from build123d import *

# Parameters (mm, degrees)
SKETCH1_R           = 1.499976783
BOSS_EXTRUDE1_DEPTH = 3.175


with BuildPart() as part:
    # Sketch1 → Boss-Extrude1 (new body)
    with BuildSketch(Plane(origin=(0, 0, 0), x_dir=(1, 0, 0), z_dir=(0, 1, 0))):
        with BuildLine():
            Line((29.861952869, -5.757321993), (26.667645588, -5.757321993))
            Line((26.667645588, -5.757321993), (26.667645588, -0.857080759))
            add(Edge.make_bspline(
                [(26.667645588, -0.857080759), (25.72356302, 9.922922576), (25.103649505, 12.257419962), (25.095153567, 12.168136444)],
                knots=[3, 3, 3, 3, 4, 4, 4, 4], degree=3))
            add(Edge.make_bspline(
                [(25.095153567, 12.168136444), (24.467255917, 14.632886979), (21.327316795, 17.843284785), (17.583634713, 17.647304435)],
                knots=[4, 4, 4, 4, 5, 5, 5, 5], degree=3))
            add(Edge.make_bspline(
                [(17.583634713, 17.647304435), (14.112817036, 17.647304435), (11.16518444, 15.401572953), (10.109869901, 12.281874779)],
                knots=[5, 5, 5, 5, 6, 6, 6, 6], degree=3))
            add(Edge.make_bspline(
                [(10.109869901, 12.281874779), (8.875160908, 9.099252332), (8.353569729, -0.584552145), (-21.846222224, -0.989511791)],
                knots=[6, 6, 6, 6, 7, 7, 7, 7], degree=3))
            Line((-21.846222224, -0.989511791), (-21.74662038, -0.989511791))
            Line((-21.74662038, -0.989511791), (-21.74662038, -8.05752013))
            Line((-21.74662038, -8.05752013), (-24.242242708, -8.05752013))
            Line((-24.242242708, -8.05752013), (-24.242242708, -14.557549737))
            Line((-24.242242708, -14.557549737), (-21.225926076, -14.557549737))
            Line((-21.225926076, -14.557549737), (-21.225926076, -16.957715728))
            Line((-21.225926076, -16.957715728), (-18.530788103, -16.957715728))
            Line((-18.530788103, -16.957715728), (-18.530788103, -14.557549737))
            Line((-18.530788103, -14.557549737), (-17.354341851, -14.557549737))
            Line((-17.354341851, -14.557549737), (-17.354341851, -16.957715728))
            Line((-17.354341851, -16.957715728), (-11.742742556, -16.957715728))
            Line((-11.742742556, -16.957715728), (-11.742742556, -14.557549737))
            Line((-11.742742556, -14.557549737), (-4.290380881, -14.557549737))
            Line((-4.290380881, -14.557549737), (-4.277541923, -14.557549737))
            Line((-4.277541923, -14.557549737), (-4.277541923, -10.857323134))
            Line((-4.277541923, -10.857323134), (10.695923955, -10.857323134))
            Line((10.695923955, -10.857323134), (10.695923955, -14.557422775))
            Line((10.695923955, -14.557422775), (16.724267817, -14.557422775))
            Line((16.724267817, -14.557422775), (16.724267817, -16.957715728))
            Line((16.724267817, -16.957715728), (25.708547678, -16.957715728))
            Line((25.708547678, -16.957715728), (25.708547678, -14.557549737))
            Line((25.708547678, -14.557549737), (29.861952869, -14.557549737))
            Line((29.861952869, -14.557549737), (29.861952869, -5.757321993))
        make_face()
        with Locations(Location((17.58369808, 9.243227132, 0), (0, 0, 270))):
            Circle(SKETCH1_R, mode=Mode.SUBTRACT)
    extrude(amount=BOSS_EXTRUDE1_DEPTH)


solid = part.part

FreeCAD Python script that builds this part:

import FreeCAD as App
import Part
import Sketcher
Q = App.Units.Quantity

doc = App.newDocument("Part")
body = doc.addObject("PartDesign::Body", "Body")

sketch1 = doc.addObject("Sketcher::SketchObject", "Sketch")
body.addObject(sketch1)
sketch1.AttachmentSupport = (doc.XZ_Plane, [""])
sketch1.MapMode = "FlatFace"
sketch1.addGeometry([
    Part.LineSegment(App.Vector(29.861953, 5.757322, 0), App.Vector(26.667646, 5.757322, 0)),
    Part.LineSegment(App.Vector(26.667646, 5.757322, 0), App.Vector(26.667646, 0.857081, 0)),
    Part.BSplineCurve([App.Vector(26.667646, 0.857081, 0), App.Vector(25.723563, -9.922923, 0), App.Vector(25.10365, -12.25742, 0), App.Vector(25.095154, -12.168136, 0)], [4, 4], [3, 4], False, 3, [1, 1, 1, 1], False),
    Part.BSplineCurve([App.Vector(25.095154, -12.168136, 0), App.Vector(24.467256, -14.632887, 0), App.Vector(21.327317, -17.843285, 0), App.Vector(17.583635, -17.647304, 0)], [4, 4], [4, 5], False, 3, [1, 1, 1, 1], False),
    Part.BSplineCurve([App.Vector(17.583635, -17.647304, 0), App.Vector(14.112817, -17.647304, 0), App.Vector(11.165184, -15.401573, 0), App.Vector(10.10987, -12.281875, 0)], [4, 4], [5, 6], False, 3, [1, 1, 1, 1], False),
    Part.BSplineCurve([App.Vector(10.10987, -12.281875, 0), App.Vector(8.875161, -9.099252, 0), App.Vector(8.35357, 0.584552, 0), App.Vector(-21.846222, 0.989512, 0)], [4, 4], [6, 7], False, 3, [1, 1, 1, 1], False),
    Part.LineSegment(App.Vector(-21.846222, 0.989512, 0), App.Vector(-21.74662, 0.989512, 0)),
    Part.LineSegment(App.Vector(-21.74662, 0.989512, 0), App.Vector(-21.74662, 8.05752, 0)),
    Part.LineSegment(App.Vector(-21.74662, 8.05752, 0), App.Vector(-24.242243, 8.05752, 0)),
    Part.LineSegment(App.Vector(-24.242243, 8.05752, 0), App.Vector(-24.242243, 14.55755, 0)),
    Part.LineSegment(App.Vector(-24.242243, 14.55755, 0), App.Vector(-21.225926, 14.55755, 0)),
    Part.LineSegment(App.Vector(-21.225926, 14.55755, 0), App.Vector(-21.225926, 16.957716, 0)),
    Part.LineSegment(App.Vector(-21.225926, 16.957716, 0), App.Vector(-18.530788, 16.957716, 0)),
    Part.LineSegment(App.Vector(-18.530788, 16.957716, 0), App.Vector(-18.530788, 14.55755, 0)),
    Part.LineSegment(App.Vector(-18.530788, 14.55755, 0), App.Vector(-17.354342, 14.55755, 0)),
    Part.LineSegment(App.Vector(-17.354342, 14.55755, 0), App.Vector(-17.354342, 16.957716, 0)),
    Part.LineSegment(App.Vector(-17.354342, 16.957716, 0), App.Vector(-11.742743, 16.957716, 0)),
    Part.LineSegment(App.Vector(-11.742743, 16.957716, 0), App.Vector(-11.742743, 14.55755, 0)),
    Part.LineSegment(App.Vector(-11.742743, 14.55755, 0), App.Vector(-4.277542, 14.55755, 0)),
    Part.LineSegment(App.Vector(-4.277542, 14.55755, 0), App.Vector(-4.277542, 10.857323, 0)),
    Part.LineSegment(App.Vector(-4.277542, 10.857323, 0), App.Vector(10.695924, 10.857323, 0)),
    Part.LineSegment(App.Vector(10.695924, 10.857323, 0), App.Vector(10.695924, 14.557423, 0)),
    Part.LineSegment(App.Vector(10.695924, 14.557423, 0), App.Vector(16.724268, 14.557423, 0)),
    Part.LineSegment(App.Vector(16.724268, 14.557423, 0), App.Vector(16.724268, 16.957716, 0)),
    Part.LineSegment(App.Vector(16.724268, 16.957716, 0), App.Vector(25.708548, 16.957716, 0)),
    Part.LineSegment(App.Vector(25.708548, 16.957716, 0), App.Vector(25.708548, 14.55755, 0)),
    Part.LineSegment(App.Vector(25.708548, 14.55755, 0), App.Vector(29.861953, 14.55755, 0)),
    Part.LineSegment(App.Vector(29.861953, 14.55755, 0), App.Vector(29.861953, 5.757322, 0)),
    Part.Circle(App.Vector(17.583698, -9.243227, 0), App.Vector(0, 0, 1), 1.499977),
], False)
sketch1.addConstraint([
    Sketcher.Constraint("Block", 2),
    Sketcher.Constraint("Block", 3),
    Sketcher.Constraint("Block", 4),
    Sketcher.Constraint("Block", 5),
    Sketcher.Constraint("Coincident", 0, 2, 1, 1),
    Sketcher.Constraint("Coincident", 1, 2, 2, 1),
    Sketcher.Constraint("Coincident", 5, 2, 6, 1),
    Sketcher.Constraint("Coincident", 6, 2, 7, 1),
    Sketcher.Constraint("Coincident", 7, 2, 8, 1),
    Sketcher.Constraint("Coincident", 8, 2, 9, 1),
    Sketcher.Constraint("Coincident", 9, 2, 10, 1),
    Sketcher.Constraint("Coincident", 10, 2, 11, 1),
    Sketcher.Constraint("Coincident", 11, 2, 12, 1),
    Sketcher.Constraint("Coincident", 12, 2, 13, 1),
    Sketcher.Constraint("Coincident", 13, 2, 14, 1),
    Sketcher.Constraint("Coincident", 14, 2, 15, 1),
    Sketcher.Constraint("Coincident", 15, 2, 16, 1),
    Sketcher.Constraint("Coincident", 16, 2, 17, 1),
    Sketcher.Constraint("Coincident", 17, 2, 18, 1),
    Sketcher.Constraint("Coincident", 18, 2, 19, 1),
    Sketcher.Constraint("Coincident", 19, 2, 20, 1),
    Sketcher.Constraint("Coincident", 20, 2, 21, 1),
    Sketcher.Constraint("Coincident", 21, 2, 22, 1),
    Sketcher.Constraint("Coincident", 22, 2, 23, 1),
    Sketcher.Constraint("Coincident", 23, 2, 24, 1),
    Sketcher.Constraint("Coincident", 24, 2, 25, 1),
    Sketcher.Constraint("Coincident", 25, 2, 26, 1),
    Sketcher.Constraint("Coincident", 26, 2, 27, 1),
    Sketcher.Constraint("Coincident", 27, 2, 0, 1),
    Sketcher.Constraint("Horizontal", 0),
    Sketcher.Constraint("Vertical", 1),
    Sketcher.Constraint("Horizontal", 6),
    Sketcher.Constraint("Vertical", 7),
    Sketcher.Constraint("Horizontal", 8),
    Sketcher.Constraint("Vertical", 9),
    Sketcher.Constraint("Horizontal", 10),
    Sketcher.Constraint("Vertical", 11),
    Sketcher.Constraint("Horizontal", 12),
    Sketcher.Constraint("Vertical", 13),
    Sketcher.Constraint("Horizontal", 14),
    Sketcher.Constraint("Vertical", 15),
    Sketcher.Constraint("Horizontal", 16),
    Sketcher.Constraint("Vertical", 17),
    Sketcher.Constraint("Horizontal", 18),
    Sketcher.Constraint("Vertical", 19),
    Sketcher.Constraint("Horizontal", 20),
    Sketcher.Constraint("Vertical", 21),
    Sketcher.Constraint("Horizontal", 22),
    Sketcher.Constraint("Vertical", 23),
    Sketcher.Constraint("Horizontal", 24),
    Sketcher.Constraint("Vertical", 25),
    Sketcher.Constraint("Horizontal", 26),
    Sketcher.Constraint("Vertical", 27),
    Sketcher.Constraint("Horizontal", 10, 2, 13, 2),
    Sketcher.Constraint("Horizontal", 12, 2, 15, 2),
    Sketcher.Constraint("Horizontal", 14, 2, 17, 2),
    Sketcher.Constraint("Horizontal", 16, 2, 23, 2),
    Sketcher.Constraint("Horizontal", 18, 2, 25, 2),
    Sketcher.Constraint("Diameter", 28, 2.999954),
    Sketcher.Constraint("DistanceX", 6, 1, 6, 2, 0.099602),
    Sketcher.Constraint("DistanceX", 16, 1, 16, 2, 5.611599),
    Sketcher.Constraint("DistanceX", 18, 1, 18, 2, 7.465201),
    Sketcher.Constraint("DistanceY", 21, 1, 21, 2, 3.7001),
    Sketcher.Constraint("DistanceX", 24, 1, 24, 2, 8.98428),
    Sketcher.Constraint("DistanceY", 1, 2, 1, 1, 4.900241),
    Sketcher.Constraint("DistanceY", 7, 1, 7, 2, 7.068008),
    Sketcher.Constraint("DistanceY", 9, 1, 9, 2, 6.50003),
    Sketcher.Constraint("DistanceX", -1, 1, 28, 3, 17.583698),
    Sketcher.Constraint("DistanceX", 9, 2, 14, 2, 6.887901),
    Sketcher.Constraint("DistanceY", 0, 2, 20, 2, 5.100001),
    Sketcher.Constraint("DistanceX", 0, 2, 0, 1, 3.194307),
    Sketcher.Constraint("DistanceX", 8, 2, 8, 1, 2.495622),
    Sketcher.Constraint("DistanceX", 10, 1, 10, 2, 3.016317),
    Sketcher.Constraint("DistanceX", 12, 1, 12, 2, 2.695138),
    Sketcher.Constraint("DistanceX", 20, 1, 20, 2, 14.973466),
    Sketcher.Constraint("DistanceX", 22, 1, 22, 2, 6.028344),
    Sketcher.Constraint("DistanceY", 11, 1, 11, 2, 2.400166),
    Sketcher.Constraint("DistanceY", 28, 3, 0, 2, 15.000549),
])
pad1 = doc.addObject("PartDesign::Pad", "Pad")
body.addObject(pad1)
pad1.Profile = sketch1
pad1.Length = Q("0.125 in")
pad1.Reversed = True

doc.recompute()
